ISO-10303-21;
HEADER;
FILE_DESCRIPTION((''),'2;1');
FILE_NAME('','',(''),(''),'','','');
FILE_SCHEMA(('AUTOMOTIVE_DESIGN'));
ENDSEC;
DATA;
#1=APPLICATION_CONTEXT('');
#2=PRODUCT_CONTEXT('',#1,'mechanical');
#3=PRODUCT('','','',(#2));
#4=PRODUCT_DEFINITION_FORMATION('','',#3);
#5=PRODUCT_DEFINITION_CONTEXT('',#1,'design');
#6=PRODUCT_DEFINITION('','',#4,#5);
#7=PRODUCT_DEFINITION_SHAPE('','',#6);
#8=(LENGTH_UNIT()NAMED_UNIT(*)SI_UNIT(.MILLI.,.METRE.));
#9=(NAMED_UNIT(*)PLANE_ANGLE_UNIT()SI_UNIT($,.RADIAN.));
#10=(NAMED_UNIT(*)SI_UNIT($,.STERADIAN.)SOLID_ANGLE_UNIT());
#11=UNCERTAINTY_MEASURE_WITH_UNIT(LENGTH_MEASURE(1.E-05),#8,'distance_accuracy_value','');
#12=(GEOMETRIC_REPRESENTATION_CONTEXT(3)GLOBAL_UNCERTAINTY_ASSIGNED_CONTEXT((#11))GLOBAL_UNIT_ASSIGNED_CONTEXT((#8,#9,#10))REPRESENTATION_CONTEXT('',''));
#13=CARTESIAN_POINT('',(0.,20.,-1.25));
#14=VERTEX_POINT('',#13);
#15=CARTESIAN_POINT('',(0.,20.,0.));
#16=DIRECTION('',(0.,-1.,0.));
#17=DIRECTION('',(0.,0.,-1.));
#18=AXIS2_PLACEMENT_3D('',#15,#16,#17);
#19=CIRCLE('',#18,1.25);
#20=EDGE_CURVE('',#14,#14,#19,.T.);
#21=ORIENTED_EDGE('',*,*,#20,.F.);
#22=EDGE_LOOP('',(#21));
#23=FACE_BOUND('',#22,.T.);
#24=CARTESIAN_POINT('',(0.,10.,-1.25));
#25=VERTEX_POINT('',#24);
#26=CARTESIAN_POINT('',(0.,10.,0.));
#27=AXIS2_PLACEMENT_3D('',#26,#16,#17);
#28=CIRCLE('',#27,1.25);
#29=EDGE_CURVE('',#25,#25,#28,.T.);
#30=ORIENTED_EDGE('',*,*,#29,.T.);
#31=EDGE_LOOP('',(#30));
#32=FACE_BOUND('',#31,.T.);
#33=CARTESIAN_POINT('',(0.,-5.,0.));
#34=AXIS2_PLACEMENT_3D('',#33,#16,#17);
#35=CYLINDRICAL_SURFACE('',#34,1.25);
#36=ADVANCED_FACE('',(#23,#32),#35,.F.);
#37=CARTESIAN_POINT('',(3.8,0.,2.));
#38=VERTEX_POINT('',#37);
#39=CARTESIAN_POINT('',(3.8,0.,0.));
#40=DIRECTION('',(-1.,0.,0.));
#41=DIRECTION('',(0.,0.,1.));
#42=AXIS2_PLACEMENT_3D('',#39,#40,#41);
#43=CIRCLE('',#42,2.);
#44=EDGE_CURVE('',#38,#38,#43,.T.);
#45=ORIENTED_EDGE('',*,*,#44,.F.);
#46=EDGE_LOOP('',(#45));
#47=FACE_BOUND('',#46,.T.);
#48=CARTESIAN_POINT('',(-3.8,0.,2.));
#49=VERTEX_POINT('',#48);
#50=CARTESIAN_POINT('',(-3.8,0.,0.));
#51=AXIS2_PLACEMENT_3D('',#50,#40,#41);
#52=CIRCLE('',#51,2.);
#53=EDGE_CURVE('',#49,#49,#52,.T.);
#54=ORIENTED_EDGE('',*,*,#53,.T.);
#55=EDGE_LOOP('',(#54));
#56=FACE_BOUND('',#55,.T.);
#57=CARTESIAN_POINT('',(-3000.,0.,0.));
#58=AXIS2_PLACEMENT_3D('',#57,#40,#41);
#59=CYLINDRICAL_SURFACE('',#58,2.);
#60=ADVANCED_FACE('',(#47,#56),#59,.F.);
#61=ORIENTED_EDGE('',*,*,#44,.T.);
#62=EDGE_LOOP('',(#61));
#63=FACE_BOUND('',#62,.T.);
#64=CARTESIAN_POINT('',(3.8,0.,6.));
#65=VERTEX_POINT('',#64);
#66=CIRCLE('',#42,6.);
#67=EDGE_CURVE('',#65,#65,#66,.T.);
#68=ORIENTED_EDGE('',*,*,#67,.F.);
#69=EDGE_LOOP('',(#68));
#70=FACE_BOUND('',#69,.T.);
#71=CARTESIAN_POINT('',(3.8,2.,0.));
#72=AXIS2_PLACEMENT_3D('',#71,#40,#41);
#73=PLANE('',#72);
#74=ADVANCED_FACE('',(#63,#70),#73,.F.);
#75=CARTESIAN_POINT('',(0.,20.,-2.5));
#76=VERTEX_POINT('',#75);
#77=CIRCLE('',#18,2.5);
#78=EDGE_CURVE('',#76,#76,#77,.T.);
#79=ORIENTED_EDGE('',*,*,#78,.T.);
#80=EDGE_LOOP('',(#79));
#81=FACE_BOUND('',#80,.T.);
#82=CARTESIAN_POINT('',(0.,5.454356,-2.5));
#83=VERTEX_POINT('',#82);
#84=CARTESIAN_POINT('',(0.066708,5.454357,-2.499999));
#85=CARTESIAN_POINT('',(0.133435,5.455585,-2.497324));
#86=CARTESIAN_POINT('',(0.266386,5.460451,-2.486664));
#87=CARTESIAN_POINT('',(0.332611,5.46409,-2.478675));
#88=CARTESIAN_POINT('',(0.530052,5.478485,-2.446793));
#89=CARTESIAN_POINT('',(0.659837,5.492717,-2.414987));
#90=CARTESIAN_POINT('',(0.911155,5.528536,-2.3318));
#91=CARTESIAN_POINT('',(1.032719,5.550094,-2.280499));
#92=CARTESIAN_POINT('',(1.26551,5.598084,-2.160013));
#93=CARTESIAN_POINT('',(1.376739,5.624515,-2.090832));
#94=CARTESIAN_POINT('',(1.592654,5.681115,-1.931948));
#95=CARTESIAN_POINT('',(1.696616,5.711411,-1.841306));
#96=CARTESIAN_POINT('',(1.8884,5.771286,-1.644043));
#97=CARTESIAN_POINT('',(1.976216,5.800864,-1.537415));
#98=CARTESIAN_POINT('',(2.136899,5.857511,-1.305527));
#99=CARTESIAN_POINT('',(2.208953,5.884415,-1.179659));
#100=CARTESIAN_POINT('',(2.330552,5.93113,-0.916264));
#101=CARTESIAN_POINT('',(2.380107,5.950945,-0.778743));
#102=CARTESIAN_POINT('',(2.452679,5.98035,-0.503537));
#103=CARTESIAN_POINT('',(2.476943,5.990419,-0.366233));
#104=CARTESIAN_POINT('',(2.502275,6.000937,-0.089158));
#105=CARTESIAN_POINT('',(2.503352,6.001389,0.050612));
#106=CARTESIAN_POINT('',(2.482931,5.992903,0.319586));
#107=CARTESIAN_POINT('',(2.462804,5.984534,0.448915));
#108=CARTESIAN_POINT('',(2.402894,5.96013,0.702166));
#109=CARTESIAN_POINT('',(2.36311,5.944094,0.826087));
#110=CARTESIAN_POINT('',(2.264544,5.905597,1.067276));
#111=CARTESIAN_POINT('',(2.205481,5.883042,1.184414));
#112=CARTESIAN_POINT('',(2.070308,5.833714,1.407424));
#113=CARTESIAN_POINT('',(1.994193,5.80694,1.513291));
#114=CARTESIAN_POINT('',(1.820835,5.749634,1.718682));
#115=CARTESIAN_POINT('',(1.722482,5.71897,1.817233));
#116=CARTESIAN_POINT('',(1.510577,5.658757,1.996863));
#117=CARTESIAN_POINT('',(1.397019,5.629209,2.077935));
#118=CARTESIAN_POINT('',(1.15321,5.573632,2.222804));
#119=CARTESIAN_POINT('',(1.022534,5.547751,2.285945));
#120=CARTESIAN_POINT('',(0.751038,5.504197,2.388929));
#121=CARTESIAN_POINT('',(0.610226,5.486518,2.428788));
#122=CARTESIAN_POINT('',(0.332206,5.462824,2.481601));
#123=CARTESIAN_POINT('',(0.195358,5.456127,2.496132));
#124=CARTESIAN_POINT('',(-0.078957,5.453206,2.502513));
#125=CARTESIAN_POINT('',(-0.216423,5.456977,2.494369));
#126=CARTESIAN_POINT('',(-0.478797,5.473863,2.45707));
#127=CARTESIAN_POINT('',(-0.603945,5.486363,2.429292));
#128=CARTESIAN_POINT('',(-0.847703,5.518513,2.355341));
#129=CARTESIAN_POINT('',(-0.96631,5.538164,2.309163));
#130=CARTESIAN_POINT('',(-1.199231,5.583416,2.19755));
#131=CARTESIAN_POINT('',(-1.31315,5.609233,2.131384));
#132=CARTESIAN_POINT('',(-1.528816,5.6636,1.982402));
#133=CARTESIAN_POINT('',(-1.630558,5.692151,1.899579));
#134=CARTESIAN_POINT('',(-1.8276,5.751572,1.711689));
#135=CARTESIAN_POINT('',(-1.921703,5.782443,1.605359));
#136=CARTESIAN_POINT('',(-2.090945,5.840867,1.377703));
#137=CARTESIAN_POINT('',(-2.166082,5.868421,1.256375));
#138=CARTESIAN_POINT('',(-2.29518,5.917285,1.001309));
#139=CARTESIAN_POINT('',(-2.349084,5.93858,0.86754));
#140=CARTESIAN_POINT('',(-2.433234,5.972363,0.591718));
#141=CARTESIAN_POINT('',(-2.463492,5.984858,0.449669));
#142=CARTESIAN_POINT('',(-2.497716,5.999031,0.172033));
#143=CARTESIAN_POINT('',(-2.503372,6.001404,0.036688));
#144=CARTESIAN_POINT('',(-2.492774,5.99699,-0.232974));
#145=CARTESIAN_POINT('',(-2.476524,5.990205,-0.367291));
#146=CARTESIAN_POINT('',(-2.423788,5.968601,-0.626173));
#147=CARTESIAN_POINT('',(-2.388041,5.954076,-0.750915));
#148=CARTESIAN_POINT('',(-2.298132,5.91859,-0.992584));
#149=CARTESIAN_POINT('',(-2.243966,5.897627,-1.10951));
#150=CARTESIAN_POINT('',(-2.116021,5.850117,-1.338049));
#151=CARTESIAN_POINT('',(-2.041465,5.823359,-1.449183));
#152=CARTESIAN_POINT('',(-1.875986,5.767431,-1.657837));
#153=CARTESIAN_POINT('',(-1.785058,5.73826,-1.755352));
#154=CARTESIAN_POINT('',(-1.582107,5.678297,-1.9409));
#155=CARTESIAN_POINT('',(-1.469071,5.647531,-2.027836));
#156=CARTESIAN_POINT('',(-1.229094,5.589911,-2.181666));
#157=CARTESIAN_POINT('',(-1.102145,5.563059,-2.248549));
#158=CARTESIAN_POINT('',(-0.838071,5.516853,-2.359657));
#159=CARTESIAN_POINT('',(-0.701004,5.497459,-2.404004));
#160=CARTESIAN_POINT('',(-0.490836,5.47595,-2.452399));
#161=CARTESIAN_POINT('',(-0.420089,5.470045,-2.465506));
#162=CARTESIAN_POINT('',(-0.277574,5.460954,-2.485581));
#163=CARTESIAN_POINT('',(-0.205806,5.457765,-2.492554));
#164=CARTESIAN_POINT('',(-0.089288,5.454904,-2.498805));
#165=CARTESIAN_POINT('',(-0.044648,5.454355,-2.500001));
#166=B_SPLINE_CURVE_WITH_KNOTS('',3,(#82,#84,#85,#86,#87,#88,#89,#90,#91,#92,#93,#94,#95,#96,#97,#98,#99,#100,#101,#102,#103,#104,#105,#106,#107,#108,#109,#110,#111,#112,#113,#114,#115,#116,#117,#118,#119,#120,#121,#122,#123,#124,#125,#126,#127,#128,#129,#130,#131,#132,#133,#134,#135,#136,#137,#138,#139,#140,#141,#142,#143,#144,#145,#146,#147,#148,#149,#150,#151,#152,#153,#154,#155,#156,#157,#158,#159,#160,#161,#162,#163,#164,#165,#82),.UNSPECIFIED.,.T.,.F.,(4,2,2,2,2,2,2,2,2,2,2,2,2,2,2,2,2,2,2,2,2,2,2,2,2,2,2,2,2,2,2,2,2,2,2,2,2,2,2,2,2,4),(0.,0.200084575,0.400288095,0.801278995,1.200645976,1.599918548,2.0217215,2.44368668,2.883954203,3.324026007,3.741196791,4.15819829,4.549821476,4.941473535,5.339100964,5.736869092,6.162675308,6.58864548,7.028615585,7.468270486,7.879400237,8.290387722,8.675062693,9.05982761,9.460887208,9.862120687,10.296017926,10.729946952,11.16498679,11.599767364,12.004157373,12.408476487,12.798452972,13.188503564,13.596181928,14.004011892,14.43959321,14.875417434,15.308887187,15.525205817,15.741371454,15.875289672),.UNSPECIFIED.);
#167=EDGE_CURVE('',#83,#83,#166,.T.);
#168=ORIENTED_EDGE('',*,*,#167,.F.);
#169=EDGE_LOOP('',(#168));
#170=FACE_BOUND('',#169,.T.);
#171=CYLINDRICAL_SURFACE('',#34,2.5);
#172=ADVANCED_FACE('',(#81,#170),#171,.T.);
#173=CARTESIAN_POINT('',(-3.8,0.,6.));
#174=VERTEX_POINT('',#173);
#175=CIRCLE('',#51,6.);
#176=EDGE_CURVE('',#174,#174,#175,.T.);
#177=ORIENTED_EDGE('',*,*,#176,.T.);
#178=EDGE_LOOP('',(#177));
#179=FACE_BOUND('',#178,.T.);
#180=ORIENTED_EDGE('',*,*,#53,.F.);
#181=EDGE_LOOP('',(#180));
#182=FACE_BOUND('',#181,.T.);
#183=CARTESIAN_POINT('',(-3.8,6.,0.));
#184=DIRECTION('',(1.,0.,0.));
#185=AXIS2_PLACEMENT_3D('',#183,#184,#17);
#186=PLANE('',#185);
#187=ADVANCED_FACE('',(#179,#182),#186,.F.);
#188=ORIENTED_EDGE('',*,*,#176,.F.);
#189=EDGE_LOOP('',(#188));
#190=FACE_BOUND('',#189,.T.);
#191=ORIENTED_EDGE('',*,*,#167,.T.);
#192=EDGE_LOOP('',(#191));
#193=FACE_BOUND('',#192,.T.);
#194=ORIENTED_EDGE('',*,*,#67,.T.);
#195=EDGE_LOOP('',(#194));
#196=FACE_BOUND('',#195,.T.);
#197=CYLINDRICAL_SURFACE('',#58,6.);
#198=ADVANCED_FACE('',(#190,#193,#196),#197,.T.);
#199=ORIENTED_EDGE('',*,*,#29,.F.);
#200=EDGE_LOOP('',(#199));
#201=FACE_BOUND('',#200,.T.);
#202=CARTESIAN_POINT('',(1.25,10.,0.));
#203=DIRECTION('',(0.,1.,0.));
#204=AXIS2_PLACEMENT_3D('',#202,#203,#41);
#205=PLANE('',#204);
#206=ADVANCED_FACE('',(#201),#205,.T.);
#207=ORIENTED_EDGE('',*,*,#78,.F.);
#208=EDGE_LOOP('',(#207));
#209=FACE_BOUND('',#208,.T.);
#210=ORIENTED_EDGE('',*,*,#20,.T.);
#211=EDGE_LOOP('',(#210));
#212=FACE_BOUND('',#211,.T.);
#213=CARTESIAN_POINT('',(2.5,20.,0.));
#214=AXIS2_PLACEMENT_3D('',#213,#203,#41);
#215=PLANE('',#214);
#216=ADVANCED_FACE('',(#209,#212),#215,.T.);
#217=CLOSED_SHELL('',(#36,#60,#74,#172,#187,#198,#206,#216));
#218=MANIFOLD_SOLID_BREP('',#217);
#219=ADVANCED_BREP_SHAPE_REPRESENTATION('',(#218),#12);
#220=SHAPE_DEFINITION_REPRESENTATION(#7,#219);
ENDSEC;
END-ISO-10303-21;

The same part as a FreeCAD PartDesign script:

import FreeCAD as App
import Part
import Sketcher

V = App.Vector


def add_polygon(sketch, points):
    """Adds a closed chain of lines whose ends are joined by coincident constraints."""
    first, n = sketch.GeometryCount, len(points)
    for a, b in zip(points, points[1:] + points[:1]):
        sketch.addGeometry(Part.LineSegment(App.Vector(*a, 0), App.Vector(*b, 0)), False)
    for i in range(n):
        sketch.addConstraint(Sketcher.Constraint("Coincident", first + i, 2, first + (i + 1) % n, 1))

doc = App.newDocument("Part")
body = doc.addObject("PartDesign::Body", "Body")

sketch1 = body.newObject("Sketcher::SketchObject", "Sketch")
sketch1.AttachmentSupport = (doc.getObject("XY_Plane"), [""])
sketch1.MapMode = "FlatFace"
add_polygon(sketch1, [(-3.8, 6), (-3.8, 2), (3.8, 2), (3.8, 6)])
sketch1.addConstraint([
    Sketcher.Constraint("Vertical", 0),
    Sketcher.Constraint("Horizontal", 1),
    Sketcher.Constraint("Vertical", 2),
    Sketcher.Constraint("Horizontal", 3),
    Sketcher.Constraint("DistanceY", 0, 2, 0, 1, 4.0),
    Sketcher.Constraint("DistanceX", 1, 1, 1, 2, 7.6),
    Sketcher.Constraint("DistanceY", -1, 1, 0, 2, 2.0),
    Sketcher.Constraint("DistanceX", 0, 2, -1, 1, 3.8),
])
revolution = body.newObject("PartDesign::Revolution", "Revolution")
revolution.Profile = sketch1
revolution.ReferenceAxis = (sketch1, ["H_Axis"])
revolution.Angle = 360

sketch2 = body.newObject("Sketcher::SketchObject", "Sketch001")
sketch2.AttachmentSupport = (doc.getObject("XY_Plane"), [""])
sketch2.MapMode = "FlatFace"
add_polygon(sketch2, [(0, 5), (2.5, 5), (2.5, 20), (1.2, 20), (1.2, 10), (0, 10)])
sketch2.addConstraint([
    Sketcher.Constraint("Horizontal", 0),
    Sketcher.Constraint("Vertical", 1),
    Sketcher.Constraint("Horizontal", 2),
    Sketcher.Constraint("Vertical", 3),
    Sketcher.Constraint("Horizontal", 4),
    Sketcher.Constraint("Vertical", 5),
    Sketcher.Constraint("PointOnObject", 4, 2, -2),
    Sketcher.Constraint("Equal", 2, 4),
    Sketcher.Constraint("DistanceY", 1, 1, 1, 2, 15.0),
    Sketcher.Constraint("DistanceY", 3, 2, 3, 1, 10.0),
    Sketcher.Constraint("DistanceX", 0, 1, 0, 2, 2.5),
    Sketcher.Constraint("DistanceY", -1, 1, 0, 2, 5.0),
])
revolution2 = body.newObject("PartDesign::Revolution", "Revolution001")
revolution2.Profile = sketch2
revolution2.ReferenceAxis = (sketch2, ["V_Axis"])
revolution2.Angle = 360

doc.recompute()
